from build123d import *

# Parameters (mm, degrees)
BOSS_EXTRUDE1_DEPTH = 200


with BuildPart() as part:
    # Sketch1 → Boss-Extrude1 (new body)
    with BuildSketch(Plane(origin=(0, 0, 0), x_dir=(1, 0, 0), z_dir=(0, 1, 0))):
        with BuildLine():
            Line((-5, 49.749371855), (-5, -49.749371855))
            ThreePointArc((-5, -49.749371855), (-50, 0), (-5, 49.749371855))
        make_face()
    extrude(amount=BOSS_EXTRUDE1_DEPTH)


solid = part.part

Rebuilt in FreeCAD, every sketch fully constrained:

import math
import FreeCAD as App
import Part
import Sketcher
from FreeCAD import Vector

doc = App.newDocument("Part")
params = doc.addObject("Spreadsheet::Sheet", "Params")
for row, (alias, value) in enumerate([
    ("sketch1_radius", "50 mm"),
    ("pad1_length", "200 mm"),
], start=1):
    params.set(f"A{row}", alias)
    params.set(f"B{row}", "=" + value)
    params.setAlias(f"B{row}", alias)

body = doc.addObject("PartDesign::Body", "Body")

sketch1 = body.newObject("Sketcher::SketchObject", "Sketch")
sketch1.AttachmentSupport = (doc.getObject("XZ_Plane"), [""])
sketch1.MapMode = "FlatFace"
sketch1.addGeometry(Part.LineSegment(Vector(-5, 49.749372, 0), Vector(-5, -49.749372, 0)), False)
sketch1.addGeometry(Part.ArcOfCircle(Part.Circle(Vector(0, 0, 0), Vector(0, 0, 1), 50), math.radians(95.73917), math.radians(264.26083)), False)
sketch1.addConstraint(Sketcher.Constraint("Coincident", 0, 1, 1, 1))
sketch1.addConstraint(Sketcher.Constraint("Coincident", 1, 2, 0, 2))
sketch1.addConstraint(Sketcher.Constraint("Vertical", 0))
sketch1.addConstraint(Sketcher.Constraint("Coincident", 1, 3, -1, 1))
sketch1.addConstraint(Sketcher.Constraint("Radius", 1, 50.0))
sketch1.addConstraint(Sketcher.Constraint("DistanceX", 0, 1, -1, 1, 5.0))
sketch1.setExpression("Constraints[4]", "Params.sketch1_radius")
pad1 = body.newObject("PartDesign::Pad", "Pad")
pad1.Profile = sketch1
pad1.setExpression("Length", "Params.pad1_length")
pad1.Reversed = True

doc.recompute()
